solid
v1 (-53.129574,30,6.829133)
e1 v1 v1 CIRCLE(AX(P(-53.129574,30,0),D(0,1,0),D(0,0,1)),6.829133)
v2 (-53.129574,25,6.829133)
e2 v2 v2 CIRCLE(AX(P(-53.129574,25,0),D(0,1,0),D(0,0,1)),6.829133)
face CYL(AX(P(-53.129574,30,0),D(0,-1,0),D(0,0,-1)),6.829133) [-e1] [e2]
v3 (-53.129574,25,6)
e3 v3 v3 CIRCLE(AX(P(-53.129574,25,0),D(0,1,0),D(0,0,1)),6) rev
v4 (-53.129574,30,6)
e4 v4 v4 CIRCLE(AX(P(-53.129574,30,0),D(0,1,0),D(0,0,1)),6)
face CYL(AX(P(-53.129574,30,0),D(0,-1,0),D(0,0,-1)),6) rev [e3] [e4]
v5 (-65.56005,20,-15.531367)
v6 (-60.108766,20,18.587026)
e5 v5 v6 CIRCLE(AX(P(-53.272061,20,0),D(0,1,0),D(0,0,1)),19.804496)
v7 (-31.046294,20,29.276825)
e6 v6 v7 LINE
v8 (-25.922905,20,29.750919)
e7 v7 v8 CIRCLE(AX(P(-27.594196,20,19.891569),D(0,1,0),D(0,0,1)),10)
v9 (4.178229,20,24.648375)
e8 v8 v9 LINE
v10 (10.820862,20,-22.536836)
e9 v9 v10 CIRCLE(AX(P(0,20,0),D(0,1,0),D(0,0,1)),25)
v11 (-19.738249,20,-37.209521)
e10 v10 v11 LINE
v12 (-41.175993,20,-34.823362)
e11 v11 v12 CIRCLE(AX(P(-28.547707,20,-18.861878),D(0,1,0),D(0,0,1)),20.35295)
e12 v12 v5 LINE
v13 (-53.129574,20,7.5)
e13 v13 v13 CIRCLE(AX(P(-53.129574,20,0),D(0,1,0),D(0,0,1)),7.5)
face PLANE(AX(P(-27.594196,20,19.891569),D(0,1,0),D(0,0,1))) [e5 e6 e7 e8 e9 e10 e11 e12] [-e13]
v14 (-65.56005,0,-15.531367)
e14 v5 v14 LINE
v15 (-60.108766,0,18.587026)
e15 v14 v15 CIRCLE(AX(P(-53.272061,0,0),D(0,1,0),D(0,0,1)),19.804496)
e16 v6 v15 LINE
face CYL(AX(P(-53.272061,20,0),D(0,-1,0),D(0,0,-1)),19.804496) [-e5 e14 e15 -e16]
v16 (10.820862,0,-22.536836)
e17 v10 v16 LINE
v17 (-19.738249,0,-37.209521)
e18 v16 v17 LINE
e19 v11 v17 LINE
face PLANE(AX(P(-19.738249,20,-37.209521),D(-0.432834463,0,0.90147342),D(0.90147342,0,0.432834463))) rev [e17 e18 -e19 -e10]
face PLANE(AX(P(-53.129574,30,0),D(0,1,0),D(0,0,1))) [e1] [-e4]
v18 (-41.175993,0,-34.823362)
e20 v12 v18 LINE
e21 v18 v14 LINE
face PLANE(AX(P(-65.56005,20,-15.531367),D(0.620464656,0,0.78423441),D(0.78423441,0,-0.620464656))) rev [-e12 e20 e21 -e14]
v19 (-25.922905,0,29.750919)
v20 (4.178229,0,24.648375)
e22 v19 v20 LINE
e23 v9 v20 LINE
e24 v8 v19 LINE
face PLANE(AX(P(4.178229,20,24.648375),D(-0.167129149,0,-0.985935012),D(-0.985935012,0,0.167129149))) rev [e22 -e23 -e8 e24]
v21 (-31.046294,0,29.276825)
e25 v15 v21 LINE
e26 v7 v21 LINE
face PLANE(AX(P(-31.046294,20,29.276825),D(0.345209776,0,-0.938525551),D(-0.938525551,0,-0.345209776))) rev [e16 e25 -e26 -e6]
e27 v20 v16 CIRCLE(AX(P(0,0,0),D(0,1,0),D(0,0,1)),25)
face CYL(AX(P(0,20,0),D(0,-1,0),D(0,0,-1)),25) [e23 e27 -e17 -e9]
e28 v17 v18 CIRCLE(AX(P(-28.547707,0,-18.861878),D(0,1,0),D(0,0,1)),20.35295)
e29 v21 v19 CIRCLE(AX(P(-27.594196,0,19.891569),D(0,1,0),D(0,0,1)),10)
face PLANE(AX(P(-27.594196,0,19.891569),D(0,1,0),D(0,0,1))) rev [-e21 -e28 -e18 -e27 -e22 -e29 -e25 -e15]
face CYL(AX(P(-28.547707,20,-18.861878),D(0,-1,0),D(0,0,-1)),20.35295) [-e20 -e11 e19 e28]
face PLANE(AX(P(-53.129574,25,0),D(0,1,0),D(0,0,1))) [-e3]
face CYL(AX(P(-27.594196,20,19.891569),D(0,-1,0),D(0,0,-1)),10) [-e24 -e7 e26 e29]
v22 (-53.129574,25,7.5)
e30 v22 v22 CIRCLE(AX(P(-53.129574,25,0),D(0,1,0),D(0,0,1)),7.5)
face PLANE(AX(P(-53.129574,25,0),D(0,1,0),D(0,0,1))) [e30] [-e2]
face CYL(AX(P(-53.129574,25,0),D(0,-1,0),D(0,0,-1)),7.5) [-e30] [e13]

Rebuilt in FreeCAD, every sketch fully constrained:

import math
import FreeCAD as App
import Part
import Sketcher

V = App.Vector

doc = App.newDocument("Part")
body = doc.addObject("PartDesign::Body", "Body")

sketch1 = body.newObject("Sketcher::SketchObject", "Sketch")
sketch1.AttachmentSupport = (doc.getObject("XZ_Plane"), [""])
sketch1.MapMode = "FlatFace"
sketch1.addGeometry([
    Part.LineSegment(V(-60.108766, 18.587026, 0), V(-31.046294, 29.276825, 0)),
    Part.ArcOfCircle(Part.Circle(V(-27.594196, 19.891569, 0), V(0, 0, 1), 10), math.radians(80.379057), math.radians(110.194602)),
    Part.LineSegment(V(-25.922905, 29.750919, 0), V(4.178229, 24.648375, 0)),
    Part.ArcOfCircle(Part.Circle(V(0, 0, 0), V(0, 0, 1), 25), math.radians(-64.352423), math.radians(80.379057)),
    Part.LineSegment(V(10.820862, -22.536836, 0), V(-19.738249, -37.209521, 0)),
    Part.ArcOfCircle(Part.Circle(V(-28.547707, -18.861878, 0), V(0, 0, 1), 20.35295), math.radians(-128.350074), math.radians(-64.352423)),
    Part.LineSegment(V(-41.175993, -34.823362, 0), V(-65.56005, -15.531367, 0)),
    Part.ArcOfCircle(Part.Circle(V(-53.272061, 0, 0), V(0, 0, 1), 19.804496), math.radians(110.194602), math.radians(231.649926)),
], False)
sketch1.addConstraint([
    Sketcher.Constraint("Tangent", 0, 2, 1, 2),
    Sketcher.Constraint("Tangent", 1, 1, 2, 1),
    Sketcher.Constraint("Tangent", 2, 2, 3, 2),
    Sketcher.Constraint("Tangent", 3, 1, 4, 1),
    Sketcher.Constraint("Tangent", 4, 2, 5, 2),
    Sketcher.Constraint("Tangent", 5, 1, 6, 1),
    Sketcher.Constraint("Tangent", 6, 2, 7, 2),
    Sketcher.Constraint("Tangent", 7, 1, 0, 1),
    Sketcher.Constraint("Coincident", 3, 3, -1, 1),
    Sketcher.Constraint("PointOnObject", 7, 3, -1),
    Sketcher.Constraint("Radius", 1, 10.0),
    Sketcher.Constraint("Radius", 3, 25.0),
    Sketcher.Constraint("Radius", 5, 20.35295),
    Sketcher.Constraint("Radius", 7, 19.804496),
    Sketcher.Constraint("DistanceX", 6, 2, 4, 2, 45.821801),
    Sketcher.Constraint("DistanceY", 7, 1, 0, 2, 10.689799),
    Sketcher.Constraint("Distance", 4, 33.89907),
    Sketcher.Constraint("DistanceY", -1, 1, 1, 3, 19.891569),
    Sketcher.Constraint("DistanceX", 7, 3, -1, 1, 53.272061),
])
pad1 = body.newObject("PartDesign::Pad", "Pad")
pad1.Profile = sketch1
pad1.Length = 20
pad1.Reversed = True

sketch2 = body.newObject("Sketcher::SketchObject", "Sketch001")
sketch2.AttachmentSupport = (doc.getObject("XZ_Plane"), [""])
sketch2.MapMode = "FlatFace"
sketch2.AttachmentOffset = App.Placement(V(0, 0, -20), App.Rotation())
sketch2.addGeometry(Part.Circle(V(-53.129574, 0, 0), V(0, 0, 1), 7.5), False)
sketch2.addConstraint([
    Sketcher.Constraint("PointOnObject", 0, 3, -1),
    Sketcher.Constraint("Diameter", 0, 15.0),
    Sketcher.Constraint("DistanceX", 0, 3, -1, 1, 53.129574),
])
pad2 = body.newObject("PartDesign::Pad", "Pad001")
pad2.Profile = sketch2
pad2.Length = 5
pad2.Reversed = True

sketch3 = body.newObject("Sketcher::SketchObject", "Sketch002")
sketch3.AttachmentSupport = (doc.getObject("XZ_Plane"), [""])
sketch3.MapMode = "FlatFace"
sketch3.AttachmentOffset = App.Placement(V(0, 0, -25), App.Rotation())
sketch3.addGeometry([
    Part.Circle(V(-53.129574, 0, 0), V(0, 0, 1), 6.829133),
    Part.Circle(V(-53.129574, 0, 0), V(0, 0, 1), 6),
], False)
sketch3.addConstraint([
    Sketcher.Constraint("Coincident", 1, 3, 0, 3),
    Sketcher.Constraint("PointOnObject", 0, 3, -1),
    Sketcher.Constraint("Diameter", 1, 12.0),
    Sketcher.Constraint("Diameter", 0, 13.658266),
    Sketcher.Constraint("DistanceX", 0, 3, -1, 1, 53.129574),
])
pad3 = body.newObject("PartDesign::Pad", "Pad002")
pad3.Profile = sketch3
pad3.Length = 5
pad3.Reversed = True

doc.recompute()
